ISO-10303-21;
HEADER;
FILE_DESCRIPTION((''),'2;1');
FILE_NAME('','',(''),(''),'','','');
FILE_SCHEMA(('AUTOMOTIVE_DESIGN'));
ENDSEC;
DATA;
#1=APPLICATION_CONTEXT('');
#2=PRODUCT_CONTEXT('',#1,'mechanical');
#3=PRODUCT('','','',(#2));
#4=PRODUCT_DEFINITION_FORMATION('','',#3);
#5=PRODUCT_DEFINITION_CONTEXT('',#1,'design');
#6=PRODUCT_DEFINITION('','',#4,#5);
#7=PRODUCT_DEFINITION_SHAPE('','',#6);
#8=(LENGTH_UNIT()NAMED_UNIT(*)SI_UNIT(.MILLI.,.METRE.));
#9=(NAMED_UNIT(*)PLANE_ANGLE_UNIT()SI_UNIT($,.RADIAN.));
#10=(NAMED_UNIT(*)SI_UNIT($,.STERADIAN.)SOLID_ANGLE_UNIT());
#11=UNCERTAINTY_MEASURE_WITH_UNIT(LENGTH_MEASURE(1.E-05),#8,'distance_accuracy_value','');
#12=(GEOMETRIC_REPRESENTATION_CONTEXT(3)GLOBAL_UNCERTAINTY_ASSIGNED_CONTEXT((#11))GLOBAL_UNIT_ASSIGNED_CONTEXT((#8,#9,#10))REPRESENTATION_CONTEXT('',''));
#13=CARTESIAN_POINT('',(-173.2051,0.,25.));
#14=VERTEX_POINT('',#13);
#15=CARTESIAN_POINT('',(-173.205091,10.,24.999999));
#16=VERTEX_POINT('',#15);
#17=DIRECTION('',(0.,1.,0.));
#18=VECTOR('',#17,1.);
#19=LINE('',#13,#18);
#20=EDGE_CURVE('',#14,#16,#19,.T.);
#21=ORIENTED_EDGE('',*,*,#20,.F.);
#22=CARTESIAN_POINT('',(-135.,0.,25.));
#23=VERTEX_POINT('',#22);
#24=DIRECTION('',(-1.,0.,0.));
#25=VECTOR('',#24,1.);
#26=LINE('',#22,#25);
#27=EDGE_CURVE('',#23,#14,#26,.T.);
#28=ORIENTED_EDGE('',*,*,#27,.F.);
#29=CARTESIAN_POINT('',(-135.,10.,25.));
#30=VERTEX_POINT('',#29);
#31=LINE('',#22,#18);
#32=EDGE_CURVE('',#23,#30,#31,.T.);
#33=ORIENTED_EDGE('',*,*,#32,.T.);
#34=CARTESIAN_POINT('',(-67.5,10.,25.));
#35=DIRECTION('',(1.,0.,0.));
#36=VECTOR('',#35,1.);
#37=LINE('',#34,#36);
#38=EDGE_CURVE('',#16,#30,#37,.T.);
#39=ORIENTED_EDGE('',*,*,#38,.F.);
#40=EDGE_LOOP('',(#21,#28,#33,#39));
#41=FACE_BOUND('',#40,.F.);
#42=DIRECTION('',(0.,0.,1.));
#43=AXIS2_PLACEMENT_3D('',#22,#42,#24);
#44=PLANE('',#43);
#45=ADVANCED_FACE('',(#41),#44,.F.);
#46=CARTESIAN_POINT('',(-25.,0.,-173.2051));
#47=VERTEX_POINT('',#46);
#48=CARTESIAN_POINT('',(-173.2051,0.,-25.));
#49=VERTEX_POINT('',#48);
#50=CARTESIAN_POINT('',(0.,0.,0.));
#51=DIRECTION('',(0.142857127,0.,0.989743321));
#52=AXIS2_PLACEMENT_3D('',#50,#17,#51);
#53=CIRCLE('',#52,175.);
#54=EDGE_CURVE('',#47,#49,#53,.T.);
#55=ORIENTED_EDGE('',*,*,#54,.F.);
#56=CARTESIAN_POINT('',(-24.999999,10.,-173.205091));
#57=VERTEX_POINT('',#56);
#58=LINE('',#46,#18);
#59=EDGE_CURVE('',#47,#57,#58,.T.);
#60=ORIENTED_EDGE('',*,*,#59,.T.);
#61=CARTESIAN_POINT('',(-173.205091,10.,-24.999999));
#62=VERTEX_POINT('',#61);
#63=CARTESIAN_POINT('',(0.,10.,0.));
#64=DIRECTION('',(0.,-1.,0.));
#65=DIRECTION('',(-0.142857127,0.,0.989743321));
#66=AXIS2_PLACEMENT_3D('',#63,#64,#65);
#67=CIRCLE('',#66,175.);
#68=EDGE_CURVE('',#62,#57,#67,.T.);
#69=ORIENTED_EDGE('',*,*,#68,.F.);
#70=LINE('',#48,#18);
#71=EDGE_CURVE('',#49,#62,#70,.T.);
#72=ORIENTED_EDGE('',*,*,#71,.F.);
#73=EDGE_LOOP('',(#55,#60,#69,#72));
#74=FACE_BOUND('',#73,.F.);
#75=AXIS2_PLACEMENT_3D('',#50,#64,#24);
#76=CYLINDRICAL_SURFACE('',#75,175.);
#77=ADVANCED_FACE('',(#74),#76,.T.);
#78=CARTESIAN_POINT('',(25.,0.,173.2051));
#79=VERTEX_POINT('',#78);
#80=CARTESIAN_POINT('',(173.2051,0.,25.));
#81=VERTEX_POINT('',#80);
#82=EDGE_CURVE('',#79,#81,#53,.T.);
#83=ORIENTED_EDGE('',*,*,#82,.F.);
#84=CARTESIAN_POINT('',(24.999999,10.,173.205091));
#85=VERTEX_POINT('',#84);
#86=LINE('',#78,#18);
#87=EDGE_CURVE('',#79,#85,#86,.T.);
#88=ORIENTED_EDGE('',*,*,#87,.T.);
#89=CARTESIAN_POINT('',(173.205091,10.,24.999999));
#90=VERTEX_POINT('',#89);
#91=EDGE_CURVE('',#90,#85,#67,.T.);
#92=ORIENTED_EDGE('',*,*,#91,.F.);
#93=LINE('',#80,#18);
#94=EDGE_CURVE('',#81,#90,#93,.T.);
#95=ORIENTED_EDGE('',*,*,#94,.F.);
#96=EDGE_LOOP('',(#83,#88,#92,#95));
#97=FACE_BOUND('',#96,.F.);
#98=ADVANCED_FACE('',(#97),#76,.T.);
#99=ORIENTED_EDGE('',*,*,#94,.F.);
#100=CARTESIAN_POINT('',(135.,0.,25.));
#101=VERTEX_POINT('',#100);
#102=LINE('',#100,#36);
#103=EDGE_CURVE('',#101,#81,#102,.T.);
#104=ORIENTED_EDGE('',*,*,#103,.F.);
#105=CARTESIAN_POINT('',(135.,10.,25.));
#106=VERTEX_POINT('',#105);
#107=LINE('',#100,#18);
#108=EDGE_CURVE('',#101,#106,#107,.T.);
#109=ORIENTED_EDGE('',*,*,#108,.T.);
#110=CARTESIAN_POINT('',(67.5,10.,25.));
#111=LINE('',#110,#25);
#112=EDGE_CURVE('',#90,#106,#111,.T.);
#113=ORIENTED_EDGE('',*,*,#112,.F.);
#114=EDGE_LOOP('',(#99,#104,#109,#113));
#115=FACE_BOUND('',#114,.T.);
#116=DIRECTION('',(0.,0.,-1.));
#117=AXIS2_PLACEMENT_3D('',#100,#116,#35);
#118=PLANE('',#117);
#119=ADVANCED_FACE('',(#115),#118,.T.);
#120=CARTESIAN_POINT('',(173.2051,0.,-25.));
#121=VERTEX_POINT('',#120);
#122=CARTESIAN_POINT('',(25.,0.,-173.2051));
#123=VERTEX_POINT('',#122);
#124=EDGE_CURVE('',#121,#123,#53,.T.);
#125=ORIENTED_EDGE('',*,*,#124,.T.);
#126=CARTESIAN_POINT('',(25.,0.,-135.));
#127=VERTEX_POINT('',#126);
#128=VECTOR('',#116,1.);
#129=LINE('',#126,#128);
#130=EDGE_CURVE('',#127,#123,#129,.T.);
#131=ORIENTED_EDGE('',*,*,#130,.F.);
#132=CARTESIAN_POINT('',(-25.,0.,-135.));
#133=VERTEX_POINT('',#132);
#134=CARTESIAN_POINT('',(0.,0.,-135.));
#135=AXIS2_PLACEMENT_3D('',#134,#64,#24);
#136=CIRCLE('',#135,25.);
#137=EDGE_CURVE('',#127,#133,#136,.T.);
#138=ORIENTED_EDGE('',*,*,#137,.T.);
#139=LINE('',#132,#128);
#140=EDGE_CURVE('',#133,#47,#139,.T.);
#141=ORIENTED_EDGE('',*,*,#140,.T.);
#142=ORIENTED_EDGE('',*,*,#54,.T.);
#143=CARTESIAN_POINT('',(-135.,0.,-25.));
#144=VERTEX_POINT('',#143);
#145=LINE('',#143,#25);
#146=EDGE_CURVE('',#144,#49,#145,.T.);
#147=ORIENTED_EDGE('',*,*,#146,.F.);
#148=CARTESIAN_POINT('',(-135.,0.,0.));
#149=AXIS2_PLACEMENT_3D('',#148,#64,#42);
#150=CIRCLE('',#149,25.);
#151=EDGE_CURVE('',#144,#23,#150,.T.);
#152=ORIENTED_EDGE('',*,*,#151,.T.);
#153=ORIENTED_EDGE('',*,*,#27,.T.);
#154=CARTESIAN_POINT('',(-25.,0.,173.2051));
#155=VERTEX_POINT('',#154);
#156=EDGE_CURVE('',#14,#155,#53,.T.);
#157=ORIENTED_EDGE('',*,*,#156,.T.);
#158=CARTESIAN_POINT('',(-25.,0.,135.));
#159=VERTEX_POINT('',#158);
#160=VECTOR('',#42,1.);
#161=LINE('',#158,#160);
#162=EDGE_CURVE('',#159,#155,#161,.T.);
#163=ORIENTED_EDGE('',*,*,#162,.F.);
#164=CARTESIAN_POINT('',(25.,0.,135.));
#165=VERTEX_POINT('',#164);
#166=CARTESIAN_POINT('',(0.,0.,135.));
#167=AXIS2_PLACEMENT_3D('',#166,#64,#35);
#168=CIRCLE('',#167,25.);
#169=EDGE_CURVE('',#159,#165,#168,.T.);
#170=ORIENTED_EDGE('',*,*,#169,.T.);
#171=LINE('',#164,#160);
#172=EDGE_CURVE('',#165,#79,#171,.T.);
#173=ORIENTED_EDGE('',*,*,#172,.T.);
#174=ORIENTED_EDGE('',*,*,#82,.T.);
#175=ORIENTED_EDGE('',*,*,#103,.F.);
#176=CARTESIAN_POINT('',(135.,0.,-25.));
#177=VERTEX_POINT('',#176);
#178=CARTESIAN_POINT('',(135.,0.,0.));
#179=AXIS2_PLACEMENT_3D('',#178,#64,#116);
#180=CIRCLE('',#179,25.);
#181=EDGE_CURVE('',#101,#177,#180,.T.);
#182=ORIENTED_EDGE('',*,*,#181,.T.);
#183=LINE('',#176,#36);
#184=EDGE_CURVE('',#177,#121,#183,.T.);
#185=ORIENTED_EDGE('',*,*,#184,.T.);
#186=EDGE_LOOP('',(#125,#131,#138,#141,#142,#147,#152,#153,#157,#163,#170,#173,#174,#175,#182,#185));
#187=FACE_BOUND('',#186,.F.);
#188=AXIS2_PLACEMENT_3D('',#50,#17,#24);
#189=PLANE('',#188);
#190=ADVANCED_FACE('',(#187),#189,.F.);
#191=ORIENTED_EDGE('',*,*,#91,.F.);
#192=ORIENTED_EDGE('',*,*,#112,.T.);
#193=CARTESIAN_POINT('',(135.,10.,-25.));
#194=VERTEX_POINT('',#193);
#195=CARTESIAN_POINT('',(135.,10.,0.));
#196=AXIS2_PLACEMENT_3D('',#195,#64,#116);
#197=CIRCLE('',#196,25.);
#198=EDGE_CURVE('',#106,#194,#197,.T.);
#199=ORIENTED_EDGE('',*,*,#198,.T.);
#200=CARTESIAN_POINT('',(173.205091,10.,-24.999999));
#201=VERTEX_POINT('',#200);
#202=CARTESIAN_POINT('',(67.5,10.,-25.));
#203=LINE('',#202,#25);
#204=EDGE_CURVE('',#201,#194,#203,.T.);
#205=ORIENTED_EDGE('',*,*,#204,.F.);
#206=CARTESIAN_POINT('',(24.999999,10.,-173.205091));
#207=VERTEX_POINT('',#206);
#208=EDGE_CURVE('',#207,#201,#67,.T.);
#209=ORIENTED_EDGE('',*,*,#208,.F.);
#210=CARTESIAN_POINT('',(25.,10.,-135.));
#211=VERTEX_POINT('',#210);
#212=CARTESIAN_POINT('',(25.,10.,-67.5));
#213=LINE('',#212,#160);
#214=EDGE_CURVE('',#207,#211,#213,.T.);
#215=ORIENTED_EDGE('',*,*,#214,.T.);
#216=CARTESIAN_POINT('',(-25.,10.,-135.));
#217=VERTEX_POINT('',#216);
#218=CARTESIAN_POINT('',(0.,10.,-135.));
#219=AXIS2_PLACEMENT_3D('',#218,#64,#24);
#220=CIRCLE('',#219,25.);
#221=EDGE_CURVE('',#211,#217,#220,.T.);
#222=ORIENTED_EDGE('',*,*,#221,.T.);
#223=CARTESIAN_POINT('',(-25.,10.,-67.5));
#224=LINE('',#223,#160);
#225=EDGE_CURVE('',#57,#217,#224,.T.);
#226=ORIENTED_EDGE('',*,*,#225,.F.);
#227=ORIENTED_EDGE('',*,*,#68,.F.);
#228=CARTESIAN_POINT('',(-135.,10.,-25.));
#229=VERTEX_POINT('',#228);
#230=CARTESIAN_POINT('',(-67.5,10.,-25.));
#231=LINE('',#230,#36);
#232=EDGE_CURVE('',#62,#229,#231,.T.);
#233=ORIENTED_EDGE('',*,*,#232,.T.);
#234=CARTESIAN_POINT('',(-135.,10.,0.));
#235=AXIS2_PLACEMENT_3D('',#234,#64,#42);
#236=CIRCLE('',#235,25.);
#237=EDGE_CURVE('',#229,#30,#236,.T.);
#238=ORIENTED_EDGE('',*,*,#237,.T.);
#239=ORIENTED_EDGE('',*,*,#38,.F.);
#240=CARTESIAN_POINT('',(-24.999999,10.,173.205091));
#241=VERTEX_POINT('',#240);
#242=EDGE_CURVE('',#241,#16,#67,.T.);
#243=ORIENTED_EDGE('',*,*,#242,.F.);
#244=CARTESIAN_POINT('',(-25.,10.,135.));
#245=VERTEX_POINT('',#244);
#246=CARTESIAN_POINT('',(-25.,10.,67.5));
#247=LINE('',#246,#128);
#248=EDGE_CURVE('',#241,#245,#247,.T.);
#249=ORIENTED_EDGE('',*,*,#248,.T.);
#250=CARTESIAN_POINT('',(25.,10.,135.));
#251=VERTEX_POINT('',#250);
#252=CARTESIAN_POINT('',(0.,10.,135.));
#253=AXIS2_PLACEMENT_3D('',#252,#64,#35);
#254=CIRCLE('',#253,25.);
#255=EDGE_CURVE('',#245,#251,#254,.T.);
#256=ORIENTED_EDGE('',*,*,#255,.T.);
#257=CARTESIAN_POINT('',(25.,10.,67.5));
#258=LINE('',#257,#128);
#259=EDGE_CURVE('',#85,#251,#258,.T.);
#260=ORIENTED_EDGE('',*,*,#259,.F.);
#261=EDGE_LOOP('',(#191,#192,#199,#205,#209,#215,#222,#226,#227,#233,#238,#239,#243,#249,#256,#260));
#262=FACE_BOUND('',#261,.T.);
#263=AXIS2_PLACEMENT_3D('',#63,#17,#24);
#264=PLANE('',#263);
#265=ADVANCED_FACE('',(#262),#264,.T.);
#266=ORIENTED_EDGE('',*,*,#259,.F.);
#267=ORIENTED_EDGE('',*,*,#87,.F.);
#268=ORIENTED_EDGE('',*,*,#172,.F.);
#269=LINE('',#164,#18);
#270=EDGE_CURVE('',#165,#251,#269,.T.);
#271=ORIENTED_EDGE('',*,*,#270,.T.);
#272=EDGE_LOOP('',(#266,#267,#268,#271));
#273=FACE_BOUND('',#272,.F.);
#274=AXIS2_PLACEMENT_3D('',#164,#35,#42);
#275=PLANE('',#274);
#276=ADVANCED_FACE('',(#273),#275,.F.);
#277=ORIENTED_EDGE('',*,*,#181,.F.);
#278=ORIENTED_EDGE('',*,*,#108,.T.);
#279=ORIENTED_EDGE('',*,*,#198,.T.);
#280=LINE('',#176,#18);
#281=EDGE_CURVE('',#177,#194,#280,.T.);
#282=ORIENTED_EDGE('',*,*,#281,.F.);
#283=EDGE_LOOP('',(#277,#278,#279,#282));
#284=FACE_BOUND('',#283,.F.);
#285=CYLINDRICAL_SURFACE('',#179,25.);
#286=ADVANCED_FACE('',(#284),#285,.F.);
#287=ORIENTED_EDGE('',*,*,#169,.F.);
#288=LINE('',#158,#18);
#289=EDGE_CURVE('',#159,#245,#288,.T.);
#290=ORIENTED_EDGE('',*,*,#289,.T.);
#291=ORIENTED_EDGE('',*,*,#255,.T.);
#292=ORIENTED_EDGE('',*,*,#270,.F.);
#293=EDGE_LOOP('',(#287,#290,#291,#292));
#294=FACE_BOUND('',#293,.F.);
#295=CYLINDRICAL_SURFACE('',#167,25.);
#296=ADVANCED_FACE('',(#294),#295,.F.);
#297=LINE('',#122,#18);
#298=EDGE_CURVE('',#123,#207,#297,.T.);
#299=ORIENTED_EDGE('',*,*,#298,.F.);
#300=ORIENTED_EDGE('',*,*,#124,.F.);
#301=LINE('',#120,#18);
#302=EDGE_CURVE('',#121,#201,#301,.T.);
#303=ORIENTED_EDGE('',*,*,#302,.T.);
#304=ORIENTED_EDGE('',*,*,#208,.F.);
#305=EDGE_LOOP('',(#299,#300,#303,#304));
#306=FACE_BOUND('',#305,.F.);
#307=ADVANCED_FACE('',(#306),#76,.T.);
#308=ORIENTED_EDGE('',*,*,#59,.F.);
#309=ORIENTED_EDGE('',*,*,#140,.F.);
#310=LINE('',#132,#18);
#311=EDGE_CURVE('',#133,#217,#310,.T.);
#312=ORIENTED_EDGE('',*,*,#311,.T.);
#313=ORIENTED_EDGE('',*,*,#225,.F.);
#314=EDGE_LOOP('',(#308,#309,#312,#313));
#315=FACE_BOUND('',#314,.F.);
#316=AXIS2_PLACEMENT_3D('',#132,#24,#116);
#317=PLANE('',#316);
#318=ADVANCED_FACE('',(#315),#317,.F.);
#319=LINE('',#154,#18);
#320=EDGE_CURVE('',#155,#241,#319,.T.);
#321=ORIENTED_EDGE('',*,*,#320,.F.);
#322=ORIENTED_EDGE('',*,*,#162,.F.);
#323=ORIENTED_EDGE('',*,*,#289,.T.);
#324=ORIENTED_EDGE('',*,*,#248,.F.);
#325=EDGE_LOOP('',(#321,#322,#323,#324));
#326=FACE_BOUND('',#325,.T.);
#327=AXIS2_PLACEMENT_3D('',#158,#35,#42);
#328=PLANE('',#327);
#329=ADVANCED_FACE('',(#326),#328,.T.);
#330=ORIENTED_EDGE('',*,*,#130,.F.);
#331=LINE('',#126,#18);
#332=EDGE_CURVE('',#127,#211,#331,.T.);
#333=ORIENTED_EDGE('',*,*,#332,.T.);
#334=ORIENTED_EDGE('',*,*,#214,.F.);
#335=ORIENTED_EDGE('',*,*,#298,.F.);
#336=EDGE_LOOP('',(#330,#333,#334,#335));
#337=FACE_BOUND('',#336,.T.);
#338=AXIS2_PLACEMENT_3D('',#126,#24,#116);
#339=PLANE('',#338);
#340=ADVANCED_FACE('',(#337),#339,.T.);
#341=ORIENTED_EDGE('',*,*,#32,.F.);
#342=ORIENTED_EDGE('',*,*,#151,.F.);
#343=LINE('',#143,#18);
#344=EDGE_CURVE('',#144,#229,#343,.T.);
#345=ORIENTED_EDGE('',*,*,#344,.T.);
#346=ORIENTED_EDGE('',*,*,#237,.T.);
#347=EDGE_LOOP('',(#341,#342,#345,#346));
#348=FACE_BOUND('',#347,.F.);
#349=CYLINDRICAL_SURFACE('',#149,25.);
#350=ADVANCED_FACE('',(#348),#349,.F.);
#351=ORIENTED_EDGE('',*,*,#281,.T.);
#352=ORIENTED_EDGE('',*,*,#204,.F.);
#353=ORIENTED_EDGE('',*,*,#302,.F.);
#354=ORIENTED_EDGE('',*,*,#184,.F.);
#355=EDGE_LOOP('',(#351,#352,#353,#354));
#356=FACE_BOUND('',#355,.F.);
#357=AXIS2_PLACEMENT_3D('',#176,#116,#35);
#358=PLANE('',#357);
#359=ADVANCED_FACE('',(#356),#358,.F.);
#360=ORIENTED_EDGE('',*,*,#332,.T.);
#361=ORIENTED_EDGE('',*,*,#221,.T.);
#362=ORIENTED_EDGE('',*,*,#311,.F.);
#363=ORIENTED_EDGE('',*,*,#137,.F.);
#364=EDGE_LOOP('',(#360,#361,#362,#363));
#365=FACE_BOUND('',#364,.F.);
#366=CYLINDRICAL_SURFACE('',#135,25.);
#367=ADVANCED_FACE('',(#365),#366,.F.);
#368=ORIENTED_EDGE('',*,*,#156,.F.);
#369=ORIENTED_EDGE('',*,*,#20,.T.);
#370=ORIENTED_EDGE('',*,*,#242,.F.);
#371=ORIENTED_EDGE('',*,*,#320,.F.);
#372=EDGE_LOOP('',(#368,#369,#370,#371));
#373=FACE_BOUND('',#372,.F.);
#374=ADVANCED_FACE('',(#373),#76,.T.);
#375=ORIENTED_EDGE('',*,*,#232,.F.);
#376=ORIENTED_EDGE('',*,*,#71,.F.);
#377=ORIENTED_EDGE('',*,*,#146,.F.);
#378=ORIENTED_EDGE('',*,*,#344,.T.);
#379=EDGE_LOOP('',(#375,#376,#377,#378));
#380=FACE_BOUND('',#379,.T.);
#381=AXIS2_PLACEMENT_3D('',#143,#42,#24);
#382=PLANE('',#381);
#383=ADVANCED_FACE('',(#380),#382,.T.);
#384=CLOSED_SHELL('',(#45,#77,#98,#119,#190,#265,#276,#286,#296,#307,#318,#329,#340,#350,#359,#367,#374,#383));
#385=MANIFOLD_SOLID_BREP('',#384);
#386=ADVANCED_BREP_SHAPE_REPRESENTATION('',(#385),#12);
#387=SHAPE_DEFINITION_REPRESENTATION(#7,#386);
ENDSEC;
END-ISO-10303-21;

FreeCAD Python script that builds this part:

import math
import FreeCAD as App
import Part
import Sketcher
from FreeCAD import Vector
Q = App.Units.Quantity

doc = App.newDocument("Part")
body = doc.addObject("PartDesign::Body", "Body")

# Sketch on XZ plane
sketch1 = doc.addObject("Sketcher::SketchObject", "Sketch")
body.addObject(sketch1)
sketch1.AttachmentSupport = (doc.XZ_Plane, [""])
sketch1.MapMode = "FlatFace"
sketch1.addGeometry(Part.Circle(Vector(0, 0, 0), Vector(0, 0, 1), 175), False)
sketch1.addConstraint(Sketcher.Constraint("Coincident", 0, 3, -1, 1))
sketch1.addConstraint(Sketcher.Constraint("Diameter", 0, Q("350 mm")))
pad1 = doc.addObject("PartDesign::Pad", "Pad")
body.addObject(pad1)
pad1.Profile = sketch1
pad1.Length = 10
pad1.Reversed = True

# Sketch on XZ plane
sketch2 = doc.addObject("Sketcher::SketchObject", "Sketch001")
body.addObject(sketch2)
sketch2.AttachmentSupport = (doc.XZ_Plane, [""])
sketch2.MapMode = "FlatFace"
sketch2.addGeometry(Part.LineSegment(Vector(25, 135, 0), Vector(25, 173, 0)), False)
sketch2.addGeometry(Part.ArcOfCircle(Part.Circle(Vector(0, 0, 0), Vector(0, 0, 1), 175), math.radians(81.79), math.radians(98.21)), False)
sketch2.addGeometry(Part.LineSegment(Vector(-25, 173, 0), Vector(-25, 135, 0)), False)
sketch2.addGeometry(Part.ArcOfCircle(Part.Circle(Vector(0, 135, 0), Vector(0, 0, 1), 25), math.radians(180), math.radians(360)), False)
sketch2.addConstraint(Sketcher.Constraint("Coincident", 0, 2, 1, 1))
sketch2.addConstraint(Sketcher.Constraint("Coincident", 1, 2, 2, 1))
sketch2.addConstraint(Sketcher.Constraint("Tangent", 2, 2, 3, 1))
sketch2.addConstraint(Sketcher.Constraint("Tangent", 3, 2, 0, 1))
sketch2.addConstraint(Sketcher.Constraint("Vertical", 0))
sketch2.addConstraint(Sketcher.Constraint("Vertical", 2))
sketch2.addConstraint(Sketcher.Constraint("Coincident", 1, 3, -1, 1))
sketch2.addConstraint(Sketcher.Constraint("PointOnObject", 3, 3, -2))
sketch2.addConstraint(Sketcher.Constraint("Radius", 3, Q("25 mm")))
sketch2.addConstraint(Sketcher.Constraint("DistanceY", -1, 1, 3, 3, Q("135 mm")))
sketch2.addConstraint(Sketcher.Constraint("Radius", 1, Q("175 mm")))
pocket1 = doc.addObject("PartDesign::Pocket", "Pocket")
body.addObject(pocket1)
pocket1.Profile = sketch2
pocket1.Type = "ThroughAll"
doc.recompute()

polarpattern = doc.addObject("PartDesign::PolarPattern", "PolarPattern")
body.addObject(polarpattern)
polarpattern.Originals = [pocket1]
polarpattern.Axis = (doc.Y_Axis, [""])
polarpattern.Angle = 360
polarpattern.Occurrences = 4
body.Tip = polarpattern

doc.recompute()
